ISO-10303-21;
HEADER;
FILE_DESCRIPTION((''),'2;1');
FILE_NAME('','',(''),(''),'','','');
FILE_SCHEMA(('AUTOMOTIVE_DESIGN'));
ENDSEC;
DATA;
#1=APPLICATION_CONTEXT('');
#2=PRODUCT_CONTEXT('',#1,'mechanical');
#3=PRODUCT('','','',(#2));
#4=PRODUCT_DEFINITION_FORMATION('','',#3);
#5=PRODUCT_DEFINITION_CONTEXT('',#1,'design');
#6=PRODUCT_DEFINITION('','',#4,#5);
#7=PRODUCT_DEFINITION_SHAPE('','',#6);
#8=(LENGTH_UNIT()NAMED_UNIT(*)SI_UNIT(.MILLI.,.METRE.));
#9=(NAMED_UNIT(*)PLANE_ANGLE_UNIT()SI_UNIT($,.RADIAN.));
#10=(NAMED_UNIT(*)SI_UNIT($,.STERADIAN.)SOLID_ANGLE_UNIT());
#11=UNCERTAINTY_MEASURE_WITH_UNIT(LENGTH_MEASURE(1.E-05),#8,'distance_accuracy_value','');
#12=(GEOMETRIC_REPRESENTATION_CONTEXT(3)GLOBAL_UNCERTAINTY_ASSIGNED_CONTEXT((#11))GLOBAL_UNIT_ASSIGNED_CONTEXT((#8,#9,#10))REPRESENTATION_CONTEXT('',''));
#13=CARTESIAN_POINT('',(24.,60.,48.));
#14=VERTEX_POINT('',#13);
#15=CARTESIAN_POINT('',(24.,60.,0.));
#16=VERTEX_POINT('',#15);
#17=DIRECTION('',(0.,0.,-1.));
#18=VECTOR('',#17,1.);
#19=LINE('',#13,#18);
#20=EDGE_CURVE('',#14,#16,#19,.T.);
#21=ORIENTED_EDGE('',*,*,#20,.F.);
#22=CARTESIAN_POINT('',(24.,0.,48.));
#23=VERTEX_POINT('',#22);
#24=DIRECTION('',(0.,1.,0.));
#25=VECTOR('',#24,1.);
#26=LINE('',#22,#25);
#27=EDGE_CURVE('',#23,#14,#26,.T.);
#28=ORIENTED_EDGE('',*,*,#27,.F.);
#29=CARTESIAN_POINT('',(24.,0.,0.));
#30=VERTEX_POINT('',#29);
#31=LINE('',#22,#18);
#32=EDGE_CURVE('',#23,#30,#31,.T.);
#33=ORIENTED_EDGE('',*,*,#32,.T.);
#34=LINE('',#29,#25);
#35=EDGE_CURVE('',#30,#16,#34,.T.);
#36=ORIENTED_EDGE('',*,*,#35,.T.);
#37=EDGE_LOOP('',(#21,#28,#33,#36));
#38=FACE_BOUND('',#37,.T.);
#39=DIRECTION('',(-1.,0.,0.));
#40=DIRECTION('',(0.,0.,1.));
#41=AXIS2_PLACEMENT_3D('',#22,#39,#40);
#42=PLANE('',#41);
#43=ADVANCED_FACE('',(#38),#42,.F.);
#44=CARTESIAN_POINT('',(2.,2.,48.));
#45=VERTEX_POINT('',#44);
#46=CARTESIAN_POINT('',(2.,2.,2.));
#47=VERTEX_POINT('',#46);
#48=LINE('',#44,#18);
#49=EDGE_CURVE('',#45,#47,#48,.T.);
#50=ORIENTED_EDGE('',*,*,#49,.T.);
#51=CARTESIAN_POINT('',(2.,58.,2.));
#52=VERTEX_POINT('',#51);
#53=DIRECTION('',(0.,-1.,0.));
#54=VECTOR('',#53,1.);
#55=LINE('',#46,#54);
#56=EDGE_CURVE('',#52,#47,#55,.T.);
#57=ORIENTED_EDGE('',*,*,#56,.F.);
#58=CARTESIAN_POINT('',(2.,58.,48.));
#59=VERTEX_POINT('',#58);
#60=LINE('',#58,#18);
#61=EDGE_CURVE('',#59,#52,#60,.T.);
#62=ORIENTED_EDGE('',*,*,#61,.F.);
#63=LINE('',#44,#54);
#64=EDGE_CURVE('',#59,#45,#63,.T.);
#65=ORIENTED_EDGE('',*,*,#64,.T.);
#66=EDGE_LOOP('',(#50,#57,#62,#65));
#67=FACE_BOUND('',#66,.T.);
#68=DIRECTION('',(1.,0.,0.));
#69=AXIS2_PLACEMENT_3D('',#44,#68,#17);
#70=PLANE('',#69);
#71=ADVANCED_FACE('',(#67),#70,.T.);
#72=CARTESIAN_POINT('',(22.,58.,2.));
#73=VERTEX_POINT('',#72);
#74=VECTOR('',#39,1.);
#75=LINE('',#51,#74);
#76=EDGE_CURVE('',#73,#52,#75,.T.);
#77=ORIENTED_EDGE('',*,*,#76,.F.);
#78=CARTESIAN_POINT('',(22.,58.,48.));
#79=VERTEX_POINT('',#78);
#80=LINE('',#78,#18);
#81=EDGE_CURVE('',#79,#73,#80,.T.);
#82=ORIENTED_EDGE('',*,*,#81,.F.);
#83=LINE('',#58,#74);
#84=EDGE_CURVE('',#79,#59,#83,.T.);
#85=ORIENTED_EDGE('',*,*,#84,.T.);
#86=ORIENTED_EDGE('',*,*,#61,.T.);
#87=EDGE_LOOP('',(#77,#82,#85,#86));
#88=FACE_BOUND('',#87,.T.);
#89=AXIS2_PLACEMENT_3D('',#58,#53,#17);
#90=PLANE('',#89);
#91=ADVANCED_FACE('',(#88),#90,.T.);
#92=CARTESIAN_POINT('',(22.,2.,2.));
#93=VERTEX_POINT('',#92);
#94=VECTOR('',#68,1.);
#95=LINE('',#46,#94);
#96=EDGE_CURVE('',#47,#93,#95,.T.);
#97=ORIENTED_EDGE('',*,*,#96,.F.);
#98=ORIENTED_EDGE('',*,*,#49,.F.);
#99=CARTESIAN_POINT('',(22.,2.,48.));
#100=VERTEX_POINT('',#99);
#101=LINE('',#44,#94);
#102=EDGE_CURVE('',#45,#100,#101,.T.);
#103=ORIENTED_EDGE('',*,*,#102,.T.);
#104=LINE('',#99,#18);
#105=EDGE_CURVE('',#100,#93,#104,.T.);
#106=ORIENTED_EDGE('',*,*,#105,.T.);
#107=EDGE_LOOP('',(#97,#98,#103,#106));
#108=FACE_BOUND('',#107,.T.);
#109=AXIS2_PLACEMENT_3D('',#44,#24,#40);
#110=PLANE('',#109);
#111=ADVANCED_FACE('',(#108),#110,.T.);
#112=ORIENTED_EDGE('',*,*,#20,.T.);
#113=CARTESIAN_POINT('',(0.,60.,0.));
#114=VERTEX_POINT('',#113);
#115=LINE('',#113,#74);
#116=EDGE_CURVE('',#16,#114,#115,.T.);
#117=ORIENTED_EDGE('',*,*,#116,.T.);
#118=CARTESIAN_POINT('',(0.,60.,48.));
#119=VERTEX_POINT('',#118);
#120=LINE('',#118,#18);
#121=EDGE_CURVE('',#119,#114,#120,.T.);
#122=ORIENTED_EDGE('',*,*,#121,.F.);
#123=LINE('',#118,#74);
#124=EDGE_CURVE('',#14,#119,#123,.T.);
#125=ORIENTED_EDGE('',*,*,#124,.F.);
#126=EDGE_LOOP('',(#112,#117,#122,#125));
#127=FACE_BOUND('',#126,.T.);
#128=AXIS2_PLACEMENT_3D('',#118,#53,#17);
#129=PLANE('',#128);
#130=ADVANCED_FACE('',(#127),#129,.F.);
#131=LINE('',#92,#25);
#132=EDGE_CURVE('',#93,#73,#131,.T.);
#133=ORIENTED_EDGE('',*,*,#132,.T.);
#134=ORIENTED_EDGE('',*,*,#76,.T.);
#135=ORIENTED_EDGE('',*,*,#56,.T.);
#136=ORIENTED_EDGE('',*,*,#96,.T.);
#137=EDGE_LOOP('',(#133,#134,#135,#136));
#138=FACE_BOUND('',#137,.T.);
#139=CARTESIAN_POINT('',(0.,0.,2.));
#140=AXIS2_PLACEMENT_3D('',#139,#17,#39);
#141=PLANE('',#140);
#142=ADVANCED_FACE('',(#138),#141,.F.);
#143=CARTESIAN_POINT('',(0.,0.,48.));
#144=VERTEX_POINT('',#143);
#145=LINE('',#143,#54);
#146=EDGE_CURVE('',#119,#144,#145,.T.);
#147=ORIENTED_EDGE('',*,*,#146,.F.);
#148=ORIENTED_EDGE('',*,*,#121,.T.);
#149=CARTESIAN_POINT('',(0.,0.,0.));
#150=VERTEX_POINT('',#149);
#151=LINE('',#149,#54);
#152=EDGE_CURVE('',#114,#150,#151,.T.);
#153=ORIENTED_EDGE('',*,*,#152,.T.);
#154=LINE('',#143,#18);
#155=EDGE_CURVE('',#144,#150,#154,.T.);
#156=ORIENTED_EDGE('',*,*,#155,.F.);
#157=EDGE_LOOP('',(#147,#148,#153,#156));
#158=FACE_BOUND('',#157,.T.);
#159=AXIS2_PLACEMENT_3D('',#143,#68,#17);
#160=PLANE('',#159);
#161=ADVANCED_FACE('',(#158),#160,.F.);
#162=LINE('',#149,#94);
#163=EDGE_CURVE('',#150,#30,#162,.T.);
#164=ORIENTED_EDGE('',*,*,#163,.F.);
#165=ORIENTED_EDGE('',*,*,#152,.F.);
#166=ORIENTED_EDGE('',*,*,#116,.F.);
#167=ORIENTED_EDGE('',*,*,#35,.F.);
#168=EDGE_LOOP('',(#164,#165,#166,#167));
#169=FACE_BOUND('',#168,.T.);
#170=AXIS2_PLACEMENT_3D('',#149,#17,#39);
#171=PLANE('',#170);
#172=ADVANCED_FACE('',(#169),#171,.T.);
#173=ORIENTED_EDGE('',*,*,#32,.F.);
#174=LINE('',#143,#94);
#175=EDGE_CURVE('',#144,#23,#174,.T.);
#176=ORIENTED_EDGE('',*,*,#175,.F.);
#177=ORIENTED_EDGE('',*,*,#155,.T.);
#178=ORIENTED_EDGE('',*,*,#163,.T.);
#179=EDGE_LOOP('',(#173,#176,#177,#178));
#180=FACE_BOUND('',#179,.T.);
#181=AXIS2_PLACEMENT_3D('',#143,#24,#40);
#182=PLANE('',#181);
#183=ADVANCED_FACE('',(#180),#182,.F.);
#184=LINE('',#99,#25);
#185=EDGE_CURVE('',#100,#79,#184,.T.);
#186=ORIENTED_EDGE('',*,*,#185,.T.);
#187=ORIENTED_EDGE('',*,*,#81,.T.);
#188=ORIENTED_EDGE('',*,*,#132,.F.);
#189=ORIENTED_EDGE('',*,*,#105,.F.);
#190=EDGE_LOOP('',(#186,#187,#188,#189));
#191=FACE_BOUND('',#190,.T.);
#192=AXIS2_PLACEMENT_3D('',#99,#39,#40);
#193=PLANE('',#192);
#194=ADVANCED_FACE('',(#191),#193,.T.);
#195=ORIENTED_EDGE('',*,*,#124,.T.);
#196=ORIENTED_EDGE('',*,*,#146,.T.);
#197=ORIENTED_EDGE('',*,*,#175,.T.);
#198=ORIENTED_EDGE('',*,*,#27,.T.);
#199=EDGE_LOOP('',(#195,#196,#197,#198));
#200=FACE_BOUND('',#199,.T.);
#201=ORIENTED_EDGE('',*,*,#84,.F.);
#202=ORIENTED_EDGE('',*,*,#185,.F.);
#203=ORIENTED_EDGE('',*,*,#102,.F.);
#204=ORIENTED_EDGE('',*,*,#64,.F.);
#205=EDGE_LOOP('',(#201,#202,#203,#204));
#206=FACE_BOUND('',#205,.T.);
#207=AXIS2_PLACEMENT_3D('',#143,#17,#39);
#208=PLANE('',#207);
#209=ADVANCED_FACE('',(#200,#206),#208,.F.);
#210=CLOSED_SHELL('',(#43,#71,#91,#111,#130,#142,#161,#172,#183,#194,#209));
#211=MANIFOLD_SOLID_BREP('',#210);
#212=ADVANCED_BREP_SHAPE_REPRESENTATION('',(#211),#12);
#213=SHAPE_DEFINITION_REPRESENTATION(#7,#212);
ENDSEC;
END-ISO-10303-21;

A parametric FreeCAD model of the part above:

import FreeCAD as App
import Part
import Sketcher
Q = App.Units.Quantity


def add_polygon(sketch, points):
    """Adds a closed chain of lines whose ends are joined by coincident constraints."""
    first, n = sketch.GeometryCount, len(points)
    for a, b in zip(points, points[1:] + points[:1]):
        sketch.addGeometry(Part.LineSegment(App.Vector(*a, 0), App.Vector(*b, 0)), False)
    for i in range(n):
        sketch.addConstraint(Sketcher.Constraint("Coincident", first + i, 2, first + (i + 1) % n, 1))

doc = App.newDocument("Part")
params = doc.addObject("Spreadsheet::Sheet", "Params")
for row, (alias, value) in enumerate([
    ("sketch1_width", "24 mm"),
    ("sketch1_width2", "20 mm"),
    ("sketch1_height", "60 mm"),
    ("sketch1_height2", "56 mm"),
    ("pad1_length", "48 mm"),
    ("sketch2_width", "20 mm"),
    ("sketch2_height", "56 mm"),
    ("pad2_length", "2 mm"),
], start=1):
    params.set(f"A{row}", alias)
    params.set(f"B{row}", "=" + value)
    params.setAlias(f"B{row}", alias)

body = doc.addObject("PartDesign::Body", "Body")

# Sketch on XY plane
sketch1 = body.newObject("Sketcher::SketchObject", "Sketch")
sketch1.AttachmentSupport = (doc.getObject("XY_Plane"), [""])
sketch1.MapMode = "FlatFace"
add_polygon(sketch1, [(0, 60), (0, 0), (24, 0), (24, 60)])  # lines 0-3
add_polygon(sketch1, [(22, 2), (2, 2), (2, 58), (22, 58)])  # lines 4-7
sketch1.addConstraint(Sketcher.Constraint("Vertical", 0))
sketch1.addConstraint(Sketcher.Constraint("Horizontal", 1))
sketch1.addConstraint(Sketcher.Constraint("Vertical", 2))
sketch1.addConstraint(Sketcher.Constraint("Horizontal", 3))
sketch1.addConstraint(Sketcher.Constraint("Horizontal", 4))
sketch1.addConstraint(Sketcher.Constraint("Vertical", 5))
sketch1.addConstraint(Sketcher.Constraint("Horizontal", 6))
sketch1.addConstraint(Sketcher.Constraint("Vertical", 7))
sketch1.addConstraint(Sketcher.Constraint("Coincident", 0, 2, -1, 1))
sketch1.addConstraint(Sketcher.Constraint("DistanceX", 1, 1, 1, 2, Q("24 mm")))
sketch1.addConstraint(Sketcher.Constraint("DistanceX", 4, 2, 4, 1, Q("20 mm")))
sketch1.addConstraint(Sketcher.Constraint("DistanceY", 0, 2, 0, 1, Q("60 mm")))
sketch1.addConstraint(Sketcher.Constraint("DistanceY", 5, 1, 5, 2, Q("56 mm")))
sketch1.addConstraint(Sketcher.Constraint("DistanceX", -1, 1, 4, 2, Q("2 mm")))
sketch1.addConstraint(Sketcher.Constraint("DistanceY", -1, 1, 4, 2, Q("2 mm")))
sketch1.setExpression("Constraints[17]", "Params.sketch1_width")
sketch1.setExpression("Constraints[18]", "Params.sketch1_width2")
sketch1.setExpression("Constraints[19]", "Params.sketch1_height")
sketch1.setExpression("Constraints[20]", "Params.sketch1_height2")
pad1 = body.newObject("PartDesign::Pad", "Pad")
pad1.Profile = sketch1
pad1.setExpression("Length", "Params.pad1_length")

# Sketch on XY plane
sketch2 = body.newObject("Sketcher::SketchObject", "Sketch001")
sketch2.AttachmentSupport = (doc.getObject("XY_Plane"), [""])
sketch2.MapMode = "FlatFace"
add_polygon(sketch2, [(2, 58), (2, 2), (22, 2), (22, 58)])  # lines 0-3
sketch2.addConstraint(Sketcher.Constraint("Vertical", 0))
sketch2.addConstraint(Sketcher.Constraint("Horizontal", 1))
sketch2.addConstraint(Sketcher.Constraint("Vertical", 2))
sketch2.addConstraint(Sketcher.Constraint("Horizontal", 3))
sketch2.addConstraint(Sketcher.Constraint("DistanceX", 1, 1, 1, 2, Q("20 mm")))
sketch2.addConstraint(Sketcher.Constraint("DistanceY", 0, 2, 0, 1, Q("56 mm")))
sketch2.addConstraint(Sketcher.Constraint("DistanceX", -1, 1, 0, 2, Q("2 mm")))
sketch2.addConstraint(Sketcher.Constraint("DistanceY", -1, 1, 0, 2, Q("2 mm")))
sketch2.setExpression("Constraints[8]", "Params.sketch2_width")
sketch2.setExpression("Constraints[9]", "Params.sketch2_height")
pad2 = body.newObject("PartDesign::Pad", "Pad001")
pad2.Profile = sketch2
pad2.setExpression("Length", "Params.pad2_length")

doc.recompute()
